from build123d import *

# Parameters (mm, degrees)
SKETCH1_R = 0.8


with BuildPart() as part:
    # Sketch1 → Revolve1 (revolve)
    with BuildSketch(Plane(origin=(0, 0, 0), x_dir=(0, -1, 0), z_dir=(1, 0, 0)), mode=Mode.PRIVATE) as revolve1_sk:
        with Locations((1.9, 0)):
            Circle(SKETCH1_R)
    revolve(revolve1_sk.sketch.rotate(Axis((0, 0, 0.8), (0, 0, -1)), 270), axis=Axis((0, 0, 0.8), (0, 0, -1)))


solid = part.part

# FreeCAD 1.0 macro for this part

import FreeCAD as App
import Part
import Sketcher
Q = App.Units.Quantity

doc = App.newDocument("Part")
body = doc.addObject("PartDesign::Body", "Body")

sketch1 = body.newObject("Sketcher::SketchObject", "Sketch")
sketch1.AttachmentSupport = (doc.getObject("YZ_Plane"), [""])
sketch1.MapMode = "FlatFace"
sketch1.addGeometry(Part.Circle(App.Vector(-1.9, 0, 0), App.Vector(0, 0, 1), 0.8), False)
sketch1.addConstraint([
    Sketcher.Constraint("PointOnObject", 0, 3, -1),
    Sketcher.Constraint("Diameter", 0, Q("1.6 mm")),
    Sketcher.Constraint("DistanceX", 0, 3, -1, 1, Q("1.9 mm")),
])
revolution = body.newObject("PartDesign::Revolution", "Revolution")
revolution.Profile = sketch1
revolution.ReferenceAxis = (sketch1, ["V_Axis"])
revolution.Angle = 360

doc.recompute()
